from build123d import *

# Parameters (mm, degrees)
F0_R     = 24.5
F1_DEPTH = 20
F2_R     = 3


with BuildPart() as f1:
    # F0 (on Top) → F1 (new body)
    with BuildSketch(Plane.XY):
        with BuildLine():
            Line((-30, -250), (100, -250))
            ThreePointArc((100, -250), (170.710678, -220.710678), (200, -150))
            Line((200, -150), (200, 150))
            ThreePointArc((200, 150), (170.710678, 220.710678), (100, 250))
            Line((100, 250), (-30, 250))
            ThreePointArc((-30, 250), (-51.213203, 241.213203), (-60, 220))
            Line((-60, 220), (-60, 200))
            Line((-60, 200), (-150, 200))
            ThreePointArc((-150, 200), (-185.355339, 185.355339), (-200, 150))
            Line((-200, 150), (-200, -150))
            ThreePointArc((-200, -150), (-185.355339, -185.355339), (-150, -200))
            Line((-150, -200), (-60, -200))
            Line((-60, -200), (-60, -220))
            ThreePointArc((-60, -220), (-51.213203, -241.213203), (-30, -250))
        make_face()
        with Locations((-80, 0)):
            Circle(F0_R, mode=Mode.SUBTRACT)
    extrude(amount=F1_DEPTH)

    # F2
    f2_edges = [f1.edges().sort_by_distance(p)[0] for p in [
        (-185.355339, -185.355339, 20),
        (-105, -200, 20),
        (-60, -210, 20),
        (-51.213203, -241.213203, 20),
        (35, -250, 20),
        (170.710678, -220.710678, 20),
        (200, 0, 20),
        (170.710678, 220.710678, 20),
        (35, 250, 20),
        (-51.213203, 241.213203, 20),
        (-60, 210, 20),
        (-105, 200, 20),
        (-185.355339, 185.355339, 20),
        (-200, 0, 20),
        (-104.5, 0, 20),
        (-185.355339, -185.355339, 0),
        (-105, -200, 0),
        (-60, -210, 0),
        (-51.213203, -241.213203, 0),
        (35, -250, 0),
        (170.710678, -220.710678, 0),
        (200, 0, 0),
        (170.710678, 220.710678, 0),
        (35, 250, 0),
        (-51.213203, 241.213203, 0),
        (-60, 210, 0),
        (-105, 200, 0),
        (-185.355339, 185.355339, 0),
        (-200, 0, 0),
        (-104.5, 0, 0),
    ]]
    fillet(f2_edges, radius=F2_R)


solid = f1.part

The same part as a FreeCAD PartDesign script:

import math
import FreeCAD as App
import Part
import Sketcher

V = App.Vector
Q = App.Units.Quantity


def edges_at(feature, points):
    """Names of the edges that pass closest to the given points."""
    edges = feature.Shape.Edges
    near = lambda p: min(range(len(edges)), key=lambda i: edges[i].distToShape(Part.Vertex(*p))[0])
    return sorted({f"Edge{near(p) + 1}" for p in points})

doc = App.newDocument("Part")
params = doc.addObject("Spreadsheet::Sheet", "Params")
for row, (alias, value) in enumerate([
    ("sketch1_diameter", "49 mm"),
    ("sketch1_radius", "100 mm"),
    ("sketch1_radius2", "30.000001 mm"),
    ("sketch1_radius3", "50 mm"),
    ("sketch1_width", "130 mm"),
    ("pad1_length", "20 mm"),
    ("fillet_radius", "3 mm"),
], start=1):
    params.set(f"A{row}", alias)
    params.set(f"B{row}", "=" + value)
    params.setAlias(f"B{row}", alias)

body = doc.addObject("PartDesign::Body", "Body")

# Sketch on XY plane
sketch1 = body.newObject("Sketcher::SketchObject", "Sketch")
sketch1.AttachmentSupport = (doc.getObject("XY_Plane"), [""])
sketch1.MapMode = "FlatFace"
sketch1.addGeometry(Part.LineSegment(V(-30, -250, 0), V(100, -250, 0)), False)
sketch1.addGeometry(Part.ArcOfCircle(Part.Circle(V(100, -150, 0), V(0, 0, 1), 100), math.radians(-90), math.radians(0)), False)
sketch1.addGeometry(Part.LineSegment(V(200, -150, 0), V(200, 150, 0)), False)
sketch1.addGeometry(Part.ArcOfCircle(Part.Circle(V(100, 150, 0), V(0, 0, 1), 100), math.radians(0), math.radians(90)), False)
sketch1.addGeometry(Part.LineSegment(V(100, 250, 0), V(-30, 250, 0)), False)
sketch1.addGeometry(Part.ArcOfCircle(Part.Circle(V(-30, 220, 0), V(0, 0, 1), 30), math.radians(90), math.radians(180)), False)
sketch1.addGeometry(Part.LineSegment(V(-60, 220, 0), V(-60, 200, 0)), False)
sketch1.addGeometry(Part.LineSegment(V(-60, 200, 0), V(-150, 200, 0)), False)
sketch1.addGeometry(Part.ArcOfCircle(Part.Circle(V(-150, 150, 0), V(0, 0, 1), 50), math.radians(90), math.radians(180)), False)
sketch1.addGeometry(Part.LineSegment(V(-200, 150, 0), V(-200, -150, 0)), False)
sketch1.addGeometry(Part.ArcOfCircle(Part.Circle(V(-150, -150, 0), V(0, 0, 1), 50), math.radians(-180), math.radians(-90)), False)
sketch1.addGeometry(Part.LineSegment(V(-150, -200, 0), V(-60, -200, 0)), False)
sketch1.addGeometry(Part.LineSegment(V(-60, -200, 0), V(-60, -220, 0)), False)
sketch1.addGeometry(Part.ArcOfCircle(Part.Circle(V(-30, -220, 0), V(0, 0, 1), 30), math.radians(-180), math.radians(-90)), False)
sketch1.addGeometry(Part.Circle(V(-80, 0, 0), V(0, 0, 1), 24), False)
sketch1.addConstraint(Sketcher.Constraint("Tangent", 0, 2, 1, 1))
sketch1.addConstraint(Sketcher.Constraint("Tangent", 1, 2, 2, 1))
sketch1.addConstraint(Sketcher.Constraint("Tangent", 2, 2, 3, 1))
sketch1.addConstraint(Sketcher.Constraint("Tangent", 3, 2, 4, 1))
sketch1.addConstraint(Sketcher.Constraint("Tangent", 4, 2, 5, 1))
sketch1.addConstraint(Sketcher.Constraint("Tangent", 5, 2, 6, 1))
sketch1.addConstraint(Sketcher.Constraint("Coincident", 6, 2, 7, 1))
sketch1.addConstraint(Sketcher.Constraint("Tangent", 7, 2, 8, 1))
sketch1.addConstraint(Sketcher.Constraint("Tangent", 8, 2, 9, 1))
sketch1.addConstraint(Sketcher.Constraint("Tangent", 9, 2, 10, 1))
sketch1.addConstraint(Sketcher.Constraint("Tangent", 10, 2, 11, 1))
sketch1.addConstraint(Sketcher.Constraint("Coincident", 11, 2, 12, 1))
sketch1.addConstraint(Sketcher.Constraint("Tangent", 12, 2, 13, 1))
sketch1.addConstraint(Sketcher.Constraint("Tangent", 13, 2, 0, 1))
sketch1.addConstraint(Sketcher.Constraint("Horizontal", 0))
sketch1.addConstraint(Sketcher.Constraint("Vertical", 2))
sketch1.addConstraint(Sketcher.Constraint("Horizontal", 4))
sketch1.addConstraint(Sketcher.Constraint("Vertical", 6))
sketch1.addConstraint(Sketcher.Constraint("Horizontal", 7))
sketch1.addConstraint(Sketcher.Constraint("Vertical", 9))
sketch1.addConstraint(Sketcher.Constraint("Horizontal", 11))
sketch1.addConstraint(Sketcher.Constraint("Vertical", 12))
sketch1.addConstraint(Sketcher.Constraint("Equal", 1, 3))
sketch1.addConstraint(Sketcher.Constraint("Equal", 8, 10))
sketch1.addConstraint(Sketcher.Constraint("Equal", 5, 13))
sketch1.addConstraint(Sketcher.Constraint("Symmetric", 1, 2, 8, 2, -1, 1))
sketch1.addConstraint(Sketcher.Constraint("Symmetric", 5, 3, 13, 3, -1))
sketch1.addConstraint(Sketcher.Constraint("PointOnObject", 14, 3, -1))
sketch1.addConstraint(Sketcher.Constraint("Horizontal", 1, 3, 10, 3))
sketch1.addConstraint(Sketcher.Constraint("Diameter", 14, Q("49 mm")))
sketch1.addConstraint(Sketcher.Constraint("Radius", 1, Q("100 mm")))
sketch1.addConstraint(Sketcher.Constraint("Radius", 5, Q("30.000001 mm")))
sketch1.addConstraint(Sketcher.Constraint("Radius", 8, Q("50 mm")))
sketch1.addConstraint(Sketcher.Constraint("DistanceX", 0, 1, 0, 2, Q("130 mm")))
sketch1.addConstraint(Sketcher.Constraint("DistanceX", 7, 2, 7, 1, Q("90 mm")))
sketch1.addConstraint(Sketcher.Constraint("DistanceY", 2, 1, 2, 2, Q("300 mm")))
sketch1.addConstraint(Sketcher.Constraint("DistanceX", 14, 3, -1, 1, Q("80 mm")))
sketch1.setExpression("Constraints[29]", "Params.sketch1_diameter")
sketch1.setExpression("Constraints[30]", "Params.sketch1_radius")
sketch1.setExpression("Constraints[31]", "Params.sketch1_radius2")
sketch1.setExpression("Constraints[32]", "Params.sketch1_radius3")
sketch1.setExpression("Constraints[33]", "Params.sketch1_width")
pad1 = body.newObject("PartDesign::Pad", "Pad")
pad1.Profile = sketch1
pad1.setExpression("Length", "Params.pad1_length")
doc.recompute()

fillet = body.newObject("PartDesign::Fillet", "Fillet")
fillet.Base = (pad1, edges_at(pad1, [
    (-185.355, -185.355, 20),
    (-105, -200, 20),
    (-60, -210, 20),
    (-51.213, -241.213, 20),
    (35, -250, 20),
    (170.711, -220.711, 20),
    (200, 0, 20),
    (170.711, 220.711, 20),
    (35, 250, 20),
    (-51.213, 241.213, 20),
    (-60, 210, 20),
    (-105, 200, 20),
    (-185.355, 185.355, 20),
    (-200, 0, 20),
    (-104.5, 0, 20),
    (-185.355, -185.355, 0),
    (-105, -200, 0),
    (-60, -210, 0),
    (-51.213, -241.213, 0),
    (35, -250, 0),
    (170.711, -220.711, 0),
    (200, 0, 0),
    (170.711, 220.711, 0),
    (35, 250, 0),
    (-51.213, 241.213, 0),
    (-60, 210, 0),
    (-105, 200, 0),
    (-185.355, 185.355, 0),
    (-200, 0, 0),
    (-104.5, 0, 0),
]))
fillet.setExpression("Radius", "Params.fillet_radius")

doc.recompute()
